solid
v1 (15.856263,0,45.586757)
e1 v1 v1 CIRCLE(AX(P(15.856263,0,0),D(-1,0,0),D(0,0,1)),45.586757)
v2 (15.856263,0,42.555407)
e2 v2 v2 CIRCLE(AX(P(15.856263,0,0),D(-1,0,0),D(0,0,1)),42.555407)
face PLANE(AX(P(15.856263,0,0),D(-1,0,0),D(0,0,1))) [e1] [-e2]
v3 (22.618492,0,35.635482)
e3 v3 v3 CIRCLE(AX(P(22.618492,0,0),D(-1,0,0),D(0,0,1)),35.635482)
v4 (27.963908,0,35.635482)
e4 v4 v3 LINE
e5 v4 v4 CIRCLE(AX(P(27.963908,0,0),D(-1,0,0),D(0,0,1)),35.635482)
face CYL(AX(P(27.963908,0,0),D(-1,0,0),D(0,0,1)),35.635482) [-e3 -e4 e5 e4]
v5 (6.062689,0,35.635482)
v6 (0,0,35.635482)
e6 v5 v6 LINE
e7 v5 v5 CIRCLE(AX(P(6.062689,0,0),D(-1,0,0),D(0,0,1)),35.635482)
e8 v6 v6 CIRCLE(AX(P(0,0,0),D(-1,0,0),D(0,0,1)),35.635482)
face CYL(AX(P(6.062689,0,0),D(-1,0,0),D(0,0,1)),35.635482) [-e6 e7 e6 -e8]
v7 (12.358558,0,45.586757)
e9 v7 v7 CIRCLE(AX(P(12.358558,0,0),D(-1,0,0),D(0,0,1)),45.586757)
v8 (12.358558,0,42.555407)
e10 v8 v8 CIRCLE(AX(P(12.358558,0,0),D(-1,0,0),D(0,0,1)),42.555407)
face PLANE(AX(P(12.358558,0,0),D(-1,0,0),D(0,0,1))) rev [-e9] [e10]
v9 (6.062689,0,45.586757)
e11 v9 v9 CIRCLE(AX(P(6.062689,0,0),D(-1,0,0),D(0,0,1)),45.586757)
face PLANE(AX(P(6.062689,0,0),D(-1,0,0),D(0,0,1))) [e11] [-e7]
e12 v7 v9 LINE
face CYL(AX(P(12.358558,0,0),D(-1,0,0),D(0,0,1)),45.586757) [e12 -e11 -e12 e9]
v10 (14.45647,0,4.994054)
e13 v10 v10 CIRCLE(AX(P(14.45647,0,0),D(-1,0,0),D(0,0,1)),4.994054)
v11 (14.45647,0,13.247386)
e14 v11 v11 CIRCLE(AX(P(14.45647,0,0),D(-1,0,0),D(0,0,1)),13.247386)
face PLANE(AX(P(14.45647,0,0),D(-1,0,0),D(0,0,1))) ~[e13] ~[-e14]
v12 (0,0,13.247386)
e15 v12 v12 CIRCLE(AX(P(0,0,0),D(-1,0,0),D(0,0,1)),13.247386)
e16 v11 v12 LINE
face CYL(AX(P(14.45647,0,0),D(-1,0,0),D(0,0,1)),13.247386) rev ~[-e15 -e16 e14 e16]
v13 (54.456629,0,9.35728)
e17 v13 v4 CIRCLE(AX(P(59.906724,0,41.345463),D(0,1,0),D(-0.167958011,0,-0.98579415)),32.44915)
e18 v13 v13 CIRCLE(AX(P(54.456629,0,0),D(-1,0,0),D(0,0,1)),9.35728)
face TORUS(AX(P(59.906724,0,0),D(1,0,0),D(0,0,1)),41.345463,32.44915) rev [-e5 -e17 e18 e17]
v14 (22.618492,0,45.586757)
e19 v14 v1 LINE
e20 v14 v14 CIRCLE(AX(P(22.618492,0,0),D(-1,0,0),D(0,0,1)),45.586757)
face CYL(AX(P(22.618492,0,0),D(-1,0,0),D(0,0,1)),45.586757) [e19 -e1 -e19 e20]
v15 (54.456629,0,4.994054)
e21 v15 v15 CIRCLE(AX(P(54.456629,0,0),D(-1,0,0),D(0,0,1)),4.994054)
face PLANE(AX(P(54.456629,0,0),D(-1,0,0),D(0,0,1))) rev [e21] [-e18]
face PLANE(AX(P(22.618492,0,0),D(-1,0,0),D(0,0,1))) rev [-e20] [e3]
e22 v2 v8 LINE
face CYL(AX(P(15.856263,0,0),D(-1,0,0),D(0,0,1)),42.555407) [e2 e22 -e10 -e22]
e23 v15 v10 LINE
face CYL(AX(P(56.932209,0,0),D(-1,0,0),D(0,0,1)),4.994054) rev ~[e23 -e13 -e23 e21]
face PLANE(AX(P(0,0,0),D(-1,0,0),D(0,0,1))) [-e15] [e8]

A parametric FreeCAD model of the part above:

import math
import FreeCAD as App
import Part
import Sketcher
from FreeCAD import Vector
Q = App.Units.Quantity


def add_polygon(sketch, points):
    """Adds a closed chain of lines whose ends are joined by coincident constraints."""
    first, n = sketch.GeometryCount, len(points)
    for a, b in zip(points, points[1:] + points[:1]):
        sketch.addGeometry(Part.LineSegment(App.Vector(*a, 0), App.Vector(*b, 0)), False)
    for i in range(n):
        sketch.addConstraint(Sketcher.Constraint("Coincident", first + i, 2, first + (i + 1) % n, 1))

doc = App.newDocument("Part")
params = doc.addObject("Spreadsheet::Sheet", "Params")
for row, (alias, value) in enumerate([
    ("revolution_angle", "360 deg"),
    ("groove_angle", "360 deg"),
], start=1):
    params.set(f"A{row}", alias)
    params.set(f"B{row}", "=" + value)
    params.setAlias(f"B{row}", alias)

body = doc.addObject("PartDesign::Body", "Body")

sketch1 = body.newObject("Sketcher::SketchObject", "Sketch")
sketch1.AttachmentSupport = (doc.getObject("XZ_Plane"), [""])
sketch1.MapMode = "FlatFace"
sketch1.addGeometry(Part.LineSegment(Vector(0, 35.6, 0), Vector(0, 0, 0)), False)
sketch1.addGeometry(Part.LineSegment(Vector(0, 0, 0), Vector(54.5, 0, 0)), False)
sketch1.addGeometry(Part.LineSegment(Vector(54.5, 0, 0), Vector(54.5, 9.4, 0)), False)
sketch1.addGeometry(Part.ArcOfCircle(Part.Circle(Vector(59.9, 41.3, 0), Vector(0, 0, 1), 32.4), math.radians(-170), math.radians(-100)), False)
sketch1.addGeometry(Part.LineSegment(Vector(28, 35.6, 0), Vector(22.6, 35.6, 0)), False)
sketch1.addGeometry(Part.LineSegment(Vector(22.6, 35.6, 0), Vector(22.6, 45.6, 0)), False)
sketch1.addGeometry(Part.LineSegment(Vector(22.6, 45.6, 0), Vector(15.9, 45.6, 0)), False)
sketch1.addGeometry(Part.LineSegment(Vector(15.9, 45.6, 0), Vector(15.9, 42.6, 0)), False)
sketch1.addGeometry(Part.LineSegment(Vector(15.9, 42.6, 0), Vector(12.4, 42.6, 0)), False)
sketch1.addGeometry(Part.LineSegment(Vector(12.4, 42.6, 0), Vector(12.4, 45.6, 0)), False)
sketch1.addGeometry(Part.LineSegment(Vector(12.4, 45.6, 0), Vector(6.1, 45.6, 0)), False)
sketch1.addGeometry(Part.LineSegment(Vector(6.1, 45.6, 0), Vector(6.1, 35.6, 0)), False)
sketch1.addGeometry(Part.LineSegment(Vector(6.1, 35.6, 0), Vector(0, 35.6, 0)), False)
sketch1.addConstraint(Sketcher.Constraint("Coincident", 0, 2, 1, 1))
sketch1.addConstraint(Sketcher.Constraint("Coincident", 1, 2, 2, 1))
sketch1.addConstraint(Sketcher.Constraint("Coincident", 2, 2, 3, 2))
sketch1.addConstraint(Sketcher.Constraint("Coincident", 3, 1, 4, 1))
sketch1.addConstraint(Sketcher.Constraint("Coincident", 4, 2, 5, 1))
sketch1.addConstraint(Sketcher.Constraint("Coincident", 5, 2, 6, 1))
sketch1.addConstraint(Sketcher.Constraint("Coincident", 6, 2, 7, 1))
sketch1.addConstraint(Sketcher.Constraint("Coincident", 7, 2, 8, 1))
sketch1.addConstraint(Sketcher.Constraint("Coincident", 8, 2, 9, 1))
sketch1.addConstraint(Sketcher.Constraint("Coincident", 9, 2, 10, 1))
sketch1.addConstraint(Sketcher.Constraint("Coincident", 10, 2, 11, 1))
sketch1.addConstraint(Sketcher.Constraint("Coincident", 11, 2, 12, 1))
sketch1.addConstraint(Sketcher.Constraint("Coincident", 12, 2, 0, 1))
sketch1.addConstraint(Sketcher.Constraint("Vertical", 0))
sketch1.addConstraint(Sketcher.Constraint("Horizontal", 1))
sketch1.addConstraint(Sketcher.Constraint("Vertical", 2))
sketch1.addConstraint(Sketcher.Constraint("Horizontal", 4))
sketch1.addConstraint(Sketcher.Constraint("Vertical", 5))
sketch1.addConstraint(Sketcher.Constraint("Horizontal", 6))
sketch1.addConstraint(Sketcher.Constraint("Vertical", 7))
sketch1.addConstraint(Sketcher.Constraint("Horizontal", 8))
sketch1.addConstraint(Sketcher.Constraint("Vertical", 9))
sketch1.addConstraint(Sketcher.Constraint("Horizontal", 10))
sketch1.addConstraint(Sketcher.Constraint("Vertical", 11))
sketch1.addConstraint(Sketcher.Constraint("Horizontal", 12))
sketch1.addConstraint(Sketcher.Constraint("Coincident", 0, 2, -1, 1))
sketch1.addConstraint(Sketcher.Constraint("Horizontal", 6, 2, 9, 2))
sketch1.addConstraint(Sketcher.Constraint("Horizontal", 4, 2, 11, 2))
sketch1.addConstraint(Sketcher.Constraint("Radius", 3, Q("32.44915 mm")))
sketch1.addConstraint(Sketcher.Constraint("DistanceX", 1, 1, 1, 2, Q("54.456629 mm")))
sketch1.addConstraint(Sketcher.Constraint("DistanceX", 6, 2, 6, 1, Q("6.762229 mm")))
sketch1.addConstraint(Sketcher.Constraint("DistanceX", 10, 2, 10, 1, Q("6.295869 mm")))
sketch1.addConstraint(Sketcher.Constraint("DistanceX", 12, 2, 12, 1, Q("6.062689 mm")))
sketch1.addConstraint(Sketcher.Constraint("DistanceY", 2, 1, 2, 2, Q("9.35728 mm")))
sketch1.addConstraint(Sketcher.Constraint("DistanceY", 7, 2, 7, 1, Q("3.03135 mm")))
sketch1.addConstraint(Sketcher.Constraint("DistanceX", 4, 2, 4, 1, Q("5.345416 mm")))
sketch1.addConstraint(Sketcher.Constraint("DistanceX", 8, 2, 8, 1, Q("3.497705 mm")))
sketch1.addConstraint(Sketcher.Constraint("DistanceY", 0, 2, 0, 1, Q("35.635482 mm")))
sketch1.addConstraint(Sketcher.Constraint("DistanceY", 5, 1, 5, 2, Q("9.951275 mm")))
revolution = body.newObject("PartDesign::Revolution", "Revolution")
revolution.Profile = sketch1
revolution.ReferenceAxis = (sketch1, ["H_Axis"])
revolution.setExpression("Angle", "Params.revolution_angle")

sketch2 = body.newObject("Sketcher::SketchObject", "Sketch001")
sketch2.AttachmentSupport = (doc.getObject("XZ_Plane"), [""])
sketch2.MapMode = "FlatFace"
add_polygon(sketch2, [(0, 13.2), (0, 0), (56.9, 0), (56.9, 5), (14.5, 5), (14.5, 13.2)])
sketch2.addConstraint(Sketcher.Constraint("Vertical", 0))
sketch2.addConstraint(Sketcher.Constraint("Horizontal", 1))
sketch2.addConstraint(Sketcher.Constraint("Vertical", 2))
sketch2.addConstraint(Sketcher.Constraint("Horizontal", 3))
sketch2.addConstraint(Sketcher.Constraint("Vertical", 4))
sketch2.addConstraint(Sketcher.Constraint("Horizontal", 5))
sketch2.addConstraint(Sketcher.Constraint("Coincident", 0, 2, -1, 1))
sketch2.addConstraint(Sketcher.Constraint("DistanceX", 1, 1, 1, 2, Q("56.932209 mm")))
sketch2.addConstraint(Sketcher.Constraint("DistanceX", 3, 2, 3, 1, Q("42.475739 mm")))
sketch2.addConstraint(Sketcher.Constraint("DistanceY", 0, 2, 0, 1, Q("13.247386 mm")))
sketch2.addConstraint(Sketcher.Constraint("DistanceY", 2, 1, 2, 2, Q("4.994054 mm")))
groove = body.newObject("PartDesign::Groove", "Groove")
groove.Profile = sketch2
groove.ReferenceAxis = (sketch2, ["H_Axis"])
groove.setExpression("Angle", "Params.groove_angle")

doc.recompute()
